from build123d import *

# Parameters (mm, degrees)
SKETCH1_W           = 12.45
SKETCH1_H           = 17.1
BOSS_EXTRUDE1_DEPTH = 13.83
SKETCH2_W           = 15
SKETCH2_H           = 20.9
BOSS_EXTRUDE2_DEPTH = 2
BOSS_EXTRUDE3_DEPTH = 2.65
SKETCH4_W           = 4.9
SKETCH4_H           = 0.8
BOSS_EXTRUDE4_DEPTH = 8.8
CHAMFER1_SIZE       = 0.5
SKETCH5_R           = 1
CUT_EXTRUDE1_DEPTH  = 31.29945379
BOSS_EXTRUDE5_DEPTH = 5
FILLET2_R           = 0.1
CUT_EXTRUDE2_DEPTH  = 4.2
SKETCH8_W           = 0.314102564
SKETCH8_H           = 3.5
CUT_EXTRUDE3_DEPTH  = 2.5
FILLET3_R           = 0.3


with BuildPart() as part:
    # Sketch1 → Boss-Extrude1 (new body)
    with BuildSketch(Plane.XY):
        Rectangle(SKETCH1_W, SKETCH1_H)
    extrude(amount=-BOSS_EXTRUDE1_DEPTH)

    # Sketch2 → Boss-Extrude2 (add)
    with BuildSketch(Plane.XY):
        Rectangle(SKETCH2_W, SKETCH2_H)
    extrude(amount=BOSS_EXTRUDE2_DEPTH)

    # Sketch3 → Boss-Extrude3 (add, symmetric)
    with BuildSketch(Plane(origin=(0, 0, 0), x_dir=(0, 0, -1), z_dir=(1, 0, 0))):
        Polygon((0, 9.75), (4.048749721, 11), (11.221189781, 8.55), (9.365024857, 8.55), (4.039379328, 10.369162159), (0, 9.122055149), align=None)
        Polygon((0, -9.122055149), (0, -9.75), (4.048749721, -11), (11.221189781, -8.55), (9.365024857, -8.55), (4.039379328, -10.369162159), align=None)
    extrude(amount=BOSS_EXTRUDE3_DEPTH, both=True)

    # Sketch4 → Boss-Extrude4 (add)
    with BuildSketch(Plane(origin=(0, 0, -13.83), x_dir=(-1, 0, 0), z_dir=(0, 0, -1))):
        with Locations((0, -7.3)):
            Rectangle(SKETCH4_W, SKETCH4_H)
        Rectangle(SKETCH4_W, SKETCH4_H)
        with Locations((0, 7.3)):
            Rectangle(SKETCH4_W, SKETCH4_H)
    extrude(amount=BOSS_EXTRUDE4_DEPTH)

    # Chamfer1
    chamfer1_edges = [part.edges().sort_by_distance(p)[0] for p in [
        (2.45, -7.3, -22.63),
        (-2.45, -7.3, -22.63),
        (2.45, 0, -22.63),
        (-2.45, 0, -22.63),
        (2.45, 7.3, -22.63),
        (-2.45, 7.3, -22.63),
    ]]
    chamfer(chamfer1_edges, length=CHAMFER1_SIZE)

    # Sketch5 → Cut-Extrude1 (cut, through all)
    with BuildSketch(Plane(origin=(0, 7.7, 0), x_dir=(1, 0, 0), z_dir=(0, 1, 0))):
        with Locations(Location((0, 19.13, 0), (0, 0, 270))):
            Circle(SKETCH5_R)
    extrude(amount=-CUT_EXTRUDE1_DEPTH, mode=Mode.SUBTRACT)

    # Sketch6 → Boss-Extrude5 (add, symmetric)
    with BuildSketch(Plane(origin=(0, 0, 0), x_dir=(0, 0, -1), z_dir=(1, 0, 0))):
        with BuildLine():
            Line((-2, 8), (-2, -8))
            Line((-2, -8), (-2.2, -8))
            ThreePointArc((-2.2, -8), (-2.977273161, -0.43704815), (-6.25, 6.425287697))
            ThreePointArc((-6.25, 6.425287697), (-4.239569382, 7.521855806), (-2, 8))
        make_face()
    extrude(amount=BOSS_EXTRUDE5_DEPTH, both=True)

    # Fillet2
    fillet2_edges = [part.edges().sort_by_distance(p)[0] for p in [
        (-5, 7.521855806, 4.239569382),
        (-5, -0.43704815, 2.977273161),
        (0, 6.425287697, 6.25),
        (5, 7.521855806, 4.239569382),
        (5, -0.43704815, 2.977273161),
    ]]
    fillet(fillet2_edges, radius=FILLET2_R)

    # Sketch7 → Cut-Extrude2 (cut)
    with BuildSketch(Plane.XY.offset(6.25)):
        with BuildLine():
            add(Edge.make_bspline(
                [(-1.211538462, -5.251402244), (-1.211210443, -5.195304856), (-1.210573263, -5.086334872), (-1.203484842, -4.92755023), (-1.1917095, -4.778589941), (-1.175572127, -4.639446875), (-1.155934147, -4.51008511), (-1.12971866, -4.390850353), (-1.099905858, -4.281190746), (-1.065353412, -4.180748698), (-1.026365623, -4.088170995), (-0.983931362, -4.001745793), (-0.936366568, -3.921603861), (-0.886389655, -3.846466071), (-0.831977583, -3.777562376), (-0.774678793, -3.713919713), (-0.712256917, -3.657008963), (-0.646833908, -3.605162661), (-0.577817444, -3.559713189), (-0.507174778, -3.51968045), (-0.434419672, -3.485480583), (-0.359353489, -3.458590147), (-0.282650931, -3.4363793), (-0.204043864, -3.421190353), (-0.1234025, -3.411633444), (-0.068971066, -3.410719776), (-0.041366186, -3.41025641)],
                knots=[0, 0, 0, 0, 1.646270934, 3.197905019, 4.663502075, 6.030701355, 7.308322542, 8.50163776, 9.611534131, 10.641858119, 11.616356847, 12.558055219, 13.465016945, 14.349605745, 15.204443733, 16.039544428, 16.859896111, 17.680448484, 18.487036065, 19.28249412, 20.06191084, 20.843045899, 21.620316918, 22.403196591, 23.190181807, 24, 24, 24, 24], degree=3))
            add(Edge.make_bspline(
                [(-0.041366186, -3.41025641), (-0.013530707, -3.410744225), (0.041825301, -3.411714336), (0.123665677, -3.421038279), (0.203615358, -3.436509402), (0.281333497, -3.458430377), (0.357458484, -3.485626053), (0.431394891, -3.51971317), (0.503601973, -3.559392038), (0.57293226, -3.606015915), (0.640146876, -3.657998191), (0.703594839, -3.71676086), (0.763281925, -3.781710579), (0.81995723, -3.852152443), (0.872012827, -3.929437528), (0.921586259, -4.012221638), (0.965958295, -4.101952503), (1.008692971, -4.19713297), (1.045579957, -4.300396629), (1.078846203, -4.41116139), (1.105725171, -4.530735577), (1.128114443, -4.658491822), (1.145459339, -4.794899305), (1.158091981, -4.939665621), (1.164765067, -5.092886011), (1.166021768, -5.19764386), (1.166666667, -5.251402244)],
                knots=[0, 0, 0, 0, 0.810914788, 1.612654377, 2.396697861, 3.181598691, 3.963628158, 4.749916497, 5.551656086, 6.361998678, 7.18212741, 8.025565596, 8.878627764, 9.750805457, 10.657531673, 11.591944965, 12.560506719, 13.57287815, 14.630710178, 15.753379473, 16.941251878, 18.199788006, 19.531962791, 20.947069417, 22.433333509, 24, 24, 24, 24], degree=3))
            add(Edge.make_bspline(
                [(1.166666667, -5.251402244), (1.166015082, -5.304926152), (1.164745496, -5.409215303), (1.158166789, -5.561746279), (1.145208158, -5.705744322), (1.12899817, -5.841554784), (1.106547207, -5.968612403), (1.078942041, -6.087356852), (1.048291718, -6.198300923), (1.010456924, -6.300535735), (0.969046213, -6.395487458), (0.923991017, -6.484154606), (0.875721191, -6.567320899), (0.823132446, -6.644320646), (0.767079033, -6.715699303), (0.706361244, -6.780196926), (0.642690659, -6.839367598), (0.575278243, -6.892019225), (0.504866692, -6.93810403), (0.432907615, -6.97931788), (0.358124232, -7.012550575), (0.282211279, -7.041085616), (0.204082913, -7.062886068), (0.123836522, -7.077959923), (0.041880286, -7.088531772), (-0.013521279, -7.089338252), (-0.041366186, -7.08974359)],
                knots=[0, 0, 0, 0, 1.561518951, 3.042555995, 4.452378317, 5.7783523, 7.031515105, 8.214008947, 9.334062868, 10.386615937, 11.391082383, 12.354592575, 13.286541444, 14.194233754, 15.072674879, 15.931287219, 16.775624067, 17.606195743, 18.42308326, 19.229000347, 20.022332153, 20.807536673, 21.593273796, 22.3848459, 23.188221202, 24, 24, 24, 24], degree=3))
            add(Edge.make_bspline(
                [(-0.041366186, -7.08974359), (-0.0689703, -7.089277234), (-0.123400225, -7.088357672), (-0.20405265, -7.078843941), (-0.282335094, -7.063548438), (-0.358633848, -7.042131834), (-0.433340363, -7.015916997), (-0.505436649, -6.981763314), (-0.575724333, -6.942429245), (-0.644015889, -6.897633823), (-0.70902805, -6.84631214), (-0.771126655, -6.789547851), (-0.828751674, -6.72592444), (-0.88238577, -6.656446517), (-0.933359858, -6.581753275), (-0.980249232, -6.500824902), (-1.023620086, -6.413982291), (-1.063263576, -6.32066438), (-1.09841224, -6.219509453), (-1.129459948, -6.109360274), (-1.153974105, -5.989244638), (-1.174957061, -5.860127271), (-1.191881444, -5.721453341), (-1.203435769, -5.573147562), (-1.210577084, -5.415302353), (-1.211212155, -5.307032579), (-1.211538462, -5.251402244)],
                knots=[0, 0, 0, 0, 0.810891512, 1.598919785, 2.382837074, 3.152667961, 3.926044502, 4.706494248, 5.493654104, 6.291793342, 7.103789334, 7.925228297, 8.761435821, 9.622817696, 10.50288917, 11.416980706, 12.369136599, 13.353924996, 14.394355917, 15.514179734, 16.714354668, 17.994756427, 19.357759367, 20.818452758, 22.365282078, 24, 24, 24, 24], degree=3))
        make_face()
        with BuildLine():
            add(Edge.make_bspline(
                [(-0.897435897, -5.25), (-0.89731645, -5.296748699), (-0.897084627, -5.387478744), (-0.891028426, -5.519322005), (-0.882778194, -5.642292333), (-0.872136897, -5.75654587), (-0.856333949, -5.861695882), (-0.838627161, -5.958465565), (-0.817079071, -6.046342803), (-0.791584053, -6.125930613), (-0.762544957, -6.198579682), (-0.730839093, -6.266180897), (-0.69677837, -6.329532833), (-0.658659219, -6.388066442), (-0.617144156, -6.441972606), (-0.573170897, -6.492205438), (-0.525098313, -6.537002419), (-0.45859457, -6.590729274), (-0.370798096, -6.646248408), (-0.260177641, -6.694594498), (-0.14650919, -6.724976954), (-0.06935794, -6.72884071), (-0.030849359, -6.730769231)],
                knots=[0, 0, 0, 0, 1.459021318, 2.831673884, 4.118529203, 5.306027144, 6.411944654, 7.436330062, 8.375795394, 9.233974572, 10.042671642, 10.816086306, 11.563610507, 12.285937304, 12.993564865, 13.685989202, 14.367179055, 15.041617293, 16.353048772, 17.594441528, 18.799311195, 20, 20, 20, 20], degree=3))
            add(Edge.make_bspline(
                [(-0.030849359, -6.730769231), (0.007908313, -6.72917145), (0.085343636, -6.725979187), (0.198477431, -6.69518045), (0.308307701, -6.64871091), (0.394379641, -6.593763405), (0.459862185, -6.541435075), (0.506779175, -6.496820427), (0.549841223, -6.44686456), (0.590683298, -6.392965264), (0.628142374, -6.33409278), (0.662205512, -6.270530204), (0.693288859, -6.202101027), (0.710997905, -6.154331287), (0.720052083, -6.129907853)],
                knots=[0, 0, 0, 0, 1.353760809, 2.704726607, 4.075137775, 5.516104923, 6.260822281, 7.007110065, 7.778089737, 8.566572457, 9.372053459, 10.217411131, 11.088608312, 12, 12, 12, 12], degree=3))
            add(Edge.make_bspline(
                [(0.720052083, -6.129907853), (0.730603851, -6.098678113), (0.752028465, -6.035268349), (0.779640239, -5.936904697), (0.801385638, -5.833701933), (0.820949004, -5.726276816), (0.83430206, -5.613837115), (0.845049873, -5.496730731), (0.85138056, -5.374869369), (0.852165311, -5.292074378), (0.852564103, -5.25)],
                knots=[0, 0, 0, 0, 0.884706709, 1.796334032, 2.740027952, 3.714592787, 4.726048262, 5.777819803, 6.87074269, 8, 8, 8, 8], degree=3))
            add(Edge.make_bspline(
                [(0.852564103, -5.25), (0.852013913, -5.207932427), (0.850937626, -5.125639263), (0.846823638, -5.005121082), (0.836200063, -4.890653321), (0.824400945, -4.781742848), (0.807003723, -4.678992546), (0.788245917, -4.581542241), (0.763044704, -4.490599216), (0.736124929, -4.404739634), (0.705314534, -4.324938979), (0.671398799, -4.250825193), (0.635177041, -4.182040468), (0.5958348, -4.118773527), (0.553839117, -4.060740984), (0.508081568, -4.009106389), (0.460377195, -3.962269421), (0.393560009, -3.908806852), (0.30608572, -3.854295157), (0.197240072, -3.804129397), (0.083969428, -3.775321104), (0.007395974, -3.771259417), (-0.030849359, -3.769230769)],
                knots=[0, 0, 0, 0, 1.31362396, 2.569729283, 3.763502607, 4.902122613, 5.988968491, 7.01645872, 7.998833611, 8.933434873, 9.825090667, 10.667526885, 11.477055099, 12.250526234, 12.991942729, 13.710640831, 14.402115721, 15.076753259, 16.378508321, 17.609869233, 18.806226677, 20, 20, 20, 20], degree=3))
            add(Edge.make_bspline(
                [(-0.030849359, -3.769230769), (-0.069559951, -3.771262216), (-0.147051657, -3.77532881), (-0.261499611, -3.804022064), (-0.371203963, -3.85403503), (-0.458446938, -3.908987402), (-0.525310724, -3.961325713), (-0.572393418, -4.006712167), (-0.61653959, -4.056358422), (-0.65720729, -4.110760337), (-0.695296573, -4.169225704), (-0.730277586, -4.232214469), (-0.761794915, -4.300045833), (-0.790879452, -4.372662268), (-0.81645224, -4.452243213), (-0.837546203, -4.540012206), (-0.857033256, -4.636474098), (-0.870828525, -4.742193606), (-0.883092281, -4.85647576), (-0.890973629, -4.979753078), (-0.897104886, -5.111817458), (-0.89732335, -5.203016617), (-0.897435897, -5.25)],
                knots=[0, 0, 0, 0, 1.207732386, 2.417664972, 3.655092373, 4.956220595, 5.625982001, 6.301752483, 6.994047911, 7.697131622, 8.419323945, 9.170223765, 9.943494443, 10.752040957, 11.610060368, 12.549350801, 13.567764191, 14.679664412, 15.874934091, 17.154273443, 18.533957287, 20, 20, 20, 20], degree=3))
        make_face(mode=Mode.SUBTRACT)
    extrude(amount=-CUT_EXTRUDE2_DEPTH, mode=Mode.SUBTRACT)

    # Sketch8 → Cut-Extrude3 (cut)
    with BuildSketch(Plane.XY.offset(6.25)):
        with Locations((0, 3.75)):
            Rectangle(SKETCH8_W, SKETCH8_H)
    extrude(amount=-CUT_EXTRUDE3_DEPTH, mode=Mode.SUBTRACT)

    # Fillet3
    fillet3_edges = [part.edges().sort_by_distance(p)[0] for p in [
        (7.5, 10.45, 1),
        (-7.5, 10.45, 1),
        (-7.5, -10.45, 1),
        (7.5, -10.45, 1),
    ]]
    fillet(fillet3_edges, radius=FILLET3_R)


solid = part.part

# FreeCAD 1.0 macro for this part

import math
import FreeCAD as App
import Part
import Sketcher
from FreeCAD import Vector


def edges_at(feature, points):
    """Names of the edges that pass closest to the given points."""
    edges = feature.Shape.Edges
    near = lambda p: min(range(len(edges)), key=lambda i: edges[i].distToShape(Part.Vertex(*p))[0])
    return sorted({f"Edge{near(p) + 1}" for p in points})


def add_polygon(sketch, points):
    """Adds a closed chain of lines whose ends are joined by coincident constraints."""
    first, n = sketch.GeometryCount, len(points)
    for a, b in zip(points, points[1:] + points[:1]):
        sketch.addGeometry(Part.LineSegment(App.Vector(*a, 0), App.Vector(*b, 0)), False)
    for i in range(n):
        sketch.addConstraint(Sketcher.Constraint("Coincident", first + i, 2, first + (i + 1) % n, 1))

doc = App.newDocument("Part")
body = doc.addObject("PartDesign::Body", "Body")

# Sketch on XY plane
sketch1 = body.newObject("Sketcher::SketchObject", "Sketch")
sketch1.AttachmentSupport = (doc.getObject("XY_Plane"), [""])
sketch1.MapMode = "FlatFace"
add_polygon(sketch1, [(-6.225, 8.55), (-6.225, -8.55), (6.225, -8.55), (6.225, 8.55)])  # lines 0-3
sketch1.addConstraint([
    Sketcher.Constraint("Vertical", 0),
    Sketcher.Constraint("Horizontal", 1),
    Sketcher.Constraint("Vertical", 2),
    Sketcher.Constraint("Horizontal", 3),
    Sketcher.Constraint("Symmetric", 0, 2, 2, 2, -1, 1),
    Sketcher.Constraint("DistanceY", 0, 2, 0, 1, 17.1),
    Sketcher.Constraint("DistanceX", 1, 1, 1, 2, 12.45),
])
pad1 = body.newObject("PartDesign::Pad", "Pad")
pad1.Profile = sketch1
pad1.Length = 13.83
pad1.Reversed = True

# Sketch on XY plane
sketch2 = body.newObject("Sketcher::SketchObject", "Sketch001")
sketch2.AttachmentSupport = (doc.getObject("XY_Plane"), [""])
sketch2.MapMode = "FlatFace"
add_polygon(sketch2, [(-7.5, 10.45), (-7.5, -10.45), (7.5, -10.45), (7.5, 10.45)])  # lines 0-3
sketch2.addConstraint([
    Sketcher.Constraint("Vertical", 0),
    Sketcher.Constraint("Horizontal", 1),
    Sketcher.Constraint("Vertical", 2),
    Sketcher.Constraint("Horizontal", 3),
    Sketcher.Constraint("Symmetric", 0, 2, 2, 2, -1, 1),
    Sketcher.Constraint("DistanceX", 1, 1, 1, 2, 15.0),
    Sketcher.Constraint("DistanceY", 0, 2, 0, 1, 20.9),
])
pad2 = body.newObject("PartDesign::Pad", "Pad001")
pad2.Profile = sketch2
pad2.Length = 2

# Sketch on YZ plane
sketch3 = body.newObject("Sketcher::SketchObject", "Sketch002")
sketch3.AttachmentSupport = (doc.getObject("YZ_Plane"), [""])
sketch3.MapMode = "FlatFace"
add_polygon(sketch3, [(11, -4.04875), (9.75, 0), (9.122055, 0), (10.369162, -4.039379), (8.55, -9.365025), (8.55, -11.22119)])  # lines 0-5
add_polygon(sketch3, [(-9.122055, 0), (-9.75, 0), (-11, -4.04875), (-8.55, -11.22119), (-8.55, -9.365025), (-10.369162, -4.039379)])  # lines 6-11
sketch3.addConstraint([
    Sketcher.Constraint("Horizontal", 1),
    Sketcher.Constraint("Vertical", 4),
    Sketcher.Constraint("Horizontal", 6),
    Sketcher.Constraint("Vertical", 9),
    Sketcher.Constraint("Symmetric", 0, 2, 6, 2, -1, 1),
    Sketcher.Constraint("Symmetric", 5, 2, 7, 2, -2),
    Sketcher.Constraint("Symmetric", 4, 2, 8, 2, -2),
    Sketcher.Constraint("Symmetric", 2, 2, 10, 2, -2),
    Sketcher.Constraint("Symmetric", 1, 2, 11, 2, -2),
    Sketcher.Constraint("Parallel", 0, 2),
    Sketcher.Constraint("Parallel", 3, 5),
    Sketcher.Constraint("Parallel", 8, 10),
    Sketcher.Constraint("DistanceX", -1, 1, 5, 2, 11.0),
    Sketcher.Constraint("DistanceX", 3, 2, 0, 2, 1.2),
    Sketcher.Constraint("DistanceX", 6, 2, 0, 2, 19.5),
    Sketcher.Constraint("Distance", 0, 4.237319),
    Sketcher.Constraint("Distance", 5, 7.57934),
    Sketcher.Constraint("DistanceX", 1, 2, 1, 1, 0.627945),
    Sketcher.Constraint("DistanceY", 4, 2, 4, 1, 1.856165),
])
pad3 = body.newObject("PartDesign::Pad", "Pad002")
pad3.Profile = sketch3
pad3.Length = 5.3
pad3.Midplane = True

# Sketch on XY plane
sketch4 = body.newObject("Sketcher::SketchObject", "Sketch003")
sketch4.AttachmentSupport = (doc.getObject("XY_Plane"), [""])
sketch4.MapMode = "FlatFace"
sketch4.AttachmentOffset = App.Placement(Vector(0, 0, -13.83), App.Rotation())
add_polygon(sketch4, [(2.45, -6.9), (2.45, -7.7), (-2.45, -7.7), (-2.45, -6.9)])  # lines 0-3
add_polygon(sketch4, [(2.45, 0.4), (2.45, -0.4), (-2.45, -0.4), (-2.45, 0.4)])  # lines 4-7
add_polygon(sketch4, [(2.45, 7.7), (2.45, 6.9), (-2.45, 6.9), (-2.45, 7.7)])  # lines 8-11
sketch4.addConstraint([
    Sketcher.Constraint("Vertical", 0),
    Sketcher.Constraint("Horizontal", 1),
    Sketcher.Constraint("Vertical", 2),
    Sketcher.Constraint("Horizontal", 3),
    Sketcher.Constraint("Vertical", 4),
    Sketcher.Constraint("Horizontal", 5),
    Sketcher.Constraint("Vertical", 6),
    Sketcher.Constraint("Horizontal", 7),
    Sketcher.Constraint("Vertical", 8),
    Sketcher.Constraint("Horizontal", 9),
    Sketcher.Constraint("Vertical", 10),
    Sketcher.Constraint("Horizontal", 11),
    Sketcher.Constraint("Symmetric", 4, 2, 6, 2, -1, 1),
    Sketcher.Constraint("Symmetric", 2, 2, 8, 2, -1, 1),
    Sketcher.Constraint("Symmetric", 0, 2, 10, 2, -1, 1),
    Sketcher.Constraint("Vertical", 3, 2, 4, 2),
    Sketcher.Constraint("Vertical", 2, 2, 5, 2),
    Sketcher.Constraint("Equal", 2, 4),
    Sketcher.Constraint("DistanceX", 1, 2, 1, 1, 4.9),
    Sketcher.Constraint("DistanceY", 0, 2, 0, 1, 0.8),
    Sketcher.Constraint("DistanceY", 0, 2, -1, 1, 7.7),
])
pad4 = body.newObject("PartDesign::Pad", "Pad003")
pad4.Profile = sketch4
pad4.Length = 8.8
pad4.Reversed = True
doc.recompute()

chamfer = body.newObject("PartDesign::Chamfer", "Chamfer")
chamfer.Base = (pad4, edges_at(pad4, [
    (2.45, -7.3, -22.63),
    (-2.45, -7.3, -22.63),
    (2.45, 0, -22.63),
    (-2.45, 0, -22.63),
    (2.45, 7.3, -22.63),
    (-2.45, 7.3, -22.63),
]))
chamfer.Size = 0.5

# Sketch on XZ plane
sketch5 = body.newObject("Sketcher::SketchObject", "Sketch004")
sketch5.AttachmentSupport = (doc.getObject("XZ_Plane"), [""])
sketch5.MapMode = "FlatFace"
sketch5.AttachmentOffset = App.Placement(Vector(0, 0, -7.7), App.Rotation())
sketch5.addGeometry(Part.Circle(Vector(0, -19.13, 0), Vector(0, 0, 1), 1), False)
sketch5.addConstraint([
    Sketcher.Constraint("PointOnObject", 0, 3, -2),
    Sketcher.Constraint("Diameter", 0, 2.0),
    Sketcher.Constraint("DistanceY", 0, 3, -1, 1, 19.13),
])
pocket1 = body.newObject("PartDesign::Pocket", "Pocket")
pocket1.Profile = sketch5
pocket1.Type = "ThroughAll"
pocket1.Reversed = True

# Sketch on YZ plane
sketch6 = body.newObject("Sketcher::SketchObject", "Sketch005")
sketch6.AttachmentSupport = (doc.getObject("YZ_Plane"), [""])
sketch6.MapMode = "FlatFace"
sketch6.addGeometry([
    Part.LineSegment(Vector(-8, 2, 0), Vector(8, 2, 0)),
    Part.ArcOfCircle(Part.Circle(Vector(0.065422, 1.476807, 0), Vector(0, 0, 1), 7.951809), math.radians(3.772525), math.radians(36.888881)),
    Part.ArcOfCircle(Part.Circle(Vector(-6.465087, 24.44794, 0), Vector(0, 0, 1), 22.300825), math.radians(-93.946652), math.radians(-54.688435)),
    Part.LineSegment(Vector(-8, 2.2, 0), Vector(-8, 2, 0)),
], False)
sketch6.addConstraint([
    Sketcher.Constraint("Coincident", 0, 2, 1, 1),
    Sketcher.Constraint("Coincident", 1, 2, 2, 2),
    Sketcher.Constraint("Coincident", 2, 1, 3, 1),
    Sketcher.Constraint("Coincident", 3, 2, 0, 1),
    Sketcher.Constraint("Horizontal", 0),
    Sketcher.Constraint("Vertical", 3),
    Sketcher.Constraint("DistanceX", 0, 1, 0, 2, 16.0),
    Sketcher.Constraint("DistanceY", 3, 2, 3, 1, 0.2),
    Sketcher.Constraint("DistanceX", -1, 1, 0, 2, 8.0),
    Sketcher.Constraint("DistanceY", -1, 1, 0, 2, 2.0),
    Sketcher.Constraint("DistanceY", -1, 1, 1, 2, 6.25),
    Sketcher.Constraint("Radius", 1, 7.951809),
    Sketcher.Constraint("Radius", 2, 22.300825),
    Sketcher.Constraint("DistanceX", -1, 1, 1, 3, 0.065422),
])
pad5 = body.newObject("PartDesign::Pad", "Pad004")
pad5.Profile = sketch6
pad5.Length = 10
pad5.Midplane = True
doc.recompute()

fillet = body.newObject("PartDesign::Fillet", "Fillet")
fillet.Base = (pad5, edges_at(pad5, [
    (-5, 7.522, 4.24),
    (-5, -0.437, 2.977),
    (0, 6.425, 6.25),
    (5, 7.522, 4.24),
    (5, -0.437, 2.977),
]))
fillet.Radius = 0.1

# Sketch on XY plane
sketch7 = body.newObject("Sketcher::SketchObject", "Sketch006")
sketch7.AttachmentSupport = (doc.getObject("XY_Plane"), [""])
sketch7.MapMode = "FlatFace"
sketch7.AttachmentOffset = App.Placement(Vector(0, 0, 6.25), App.Rotation())
sketch7.addGeometry([
    Part.BSplineCurve([Vector(-1.211538, -5.251402, 0), Vector(-1.21121, -5.195305, 0), Vector(-1.210573, -5.086335, 0), Vector(-1.203485, -4.92755, 0), Vector(-1.191709, -4.77859, 0), Vector(-1.175572, -4.639447, 0), Vector(-1.155934, -4.510085, 0), Vector(-1.129719, -4.39085, 0), Vector(-1.099906, -4.281191, 0), Vector(-1.065353, -4.180749, 0), Vector(-1.026366, -4.088171, 0), Vector(-0.983931, -4.001746, 0), Vector(-0.936367, -3.921604, 0), Vector(-0.88639, -3.846466, 0), Vector(-0.831978, -3.777562, 0), Vector(-0.774679, -3.71392, 0), Vector(-0.712257, -3.657009, 0), Vector(-0.646834, -3.605163, 0), Vector(-0.577817, -3.559713, 0), Vector(-0.507175, -3.51968, 0), Vector(-0.43442, -3.485481, 0), Vector(-0.359353, -3.45859, 0), Vector(-0.282651, -3.436379, 0), Vector(-0.204044, -3.42119, 0), Vector(-0.123402, -3.411633, 0), Vector(-0.068971, -3.41072, 0), Vector(-0.041366, -3.410256, 0)], [4, 1, 1, 1, 1, 1, 1, 1, 1, 1, 1, 1, 1, 1, 1, 1, 1, 1, 1, 1, 1, 1, 1, 1, 4], [0, 1.646270934, 3.197905019, 4.663502075, 6.030701355, 7.308322542, 8.50163776, 9.611534131, 10.641858119, 11.616356847, 12.558055219, 13.465016945, 14.349605745, 15.204443733, 16.039544428, 16.859896111, 17.680448484, 18.487036065, 19.28249412, 20.06191084, 20.843045899, 21.620316918, 22.403196591, 23.190181807, 24], False, 3, [1, 1, 1, 1, 1, 1, 1, 1, 1, 1, 1, 1, 1, 1, 1, 1, 1, 1, 1, 1, 1, 1, 1, 1, 1, 1, 1], False),  # 0
    Part.BSplineCurve([Vector(-0.041366, -7.089744, 0), Vector(-0.06897, -7.089277, 0), Vector(-0.1234, -7.088358, 0), Vector(-0.204053, -7.078844, 0), Vector(-0.282335, -7.063548, 0), Vector(-0.358634, -7.042132, 0), Vector(-0.43334, -7.015917, 0), Vector(-0.505437, -6.981763, 0), Vector(-0.575724, -6.942429, 0), Vector(-0.644016, -6.897634, 0), Vector(-0.709028, -6.846312, 0), Vector(-0.771127, -6.789548, 0), Vector(-0.828752, -6.725924, 0), Vector(-0.882386, -6.656447, 0), Vector(-0.93336, -6.581753, 0), Vector(-0.980249, -6.500825, 0), Vector(-1.02362, -6.413982, 0), Vector(-1.063264, -6.320664, 0), Vector(-1.098412, -6.219509, 0), Vector(-1.12946, -6.10936, 0), Vector(-1.153974, -5.989245, 0), Vector(-1.174957, -5.860127, 0), Vector(-1.191881, -5.721453, 0), Vector(-1.203436, -5.573148, 0), Vector(-1.210577, -5.415302, 0), Vector(-1.211212, -5.307033, 0), Vector(-1.211538, -5.251402, 0)], [4, 1, 1, 1, 1, 1, 1, 1, 1, 1, 1, 1, 1, 1, 1, 1, 1, 1, 1, 1, 1, 1, 1, 1, 4], [0, 0.810891512, 1.598919785, 2.382837074, 3.152667961, 3.926044502, 4.706494248, 5.493654104, 6.291793342, 7.103789334, 7.925228297, 8.761435821, 9.622817696, 10.50288917, 11.416980706, 12.369136599, 13.353924996, 14.394355917, 15.514179734, 16.714354668, 17.994756427, 19.357759367, 20.818452758, 22.365282078, 24], False, 3, [1, 1, 1, 1, 1, 1, 1, 1, 1, 1, 1, 1, 1, 1, 1, 1, 1, 1, 1, 1, 1, 1, 1, 1, 1, 1, 1], False),  # 1
    Part.BSplineCurve([Vector(1.166667, -5.251402, 0), Vector(1.166015, -5.304926, 0), Vector(1.164745, -5.409215, 0), Vector(1.158167, -5.561746, 0), Vector(1.145208, -5.705744, 0), Vector(1.128998, -5.841555, 0), Vector(1.106547, -5.968612, 0), Vector(1.078942, -6.087357, 0), Vector(1.048292, -6.198301, 0), Vector(1.010457, -6.300536, 0), Vector(0.969046, -6.395487, 0), Vector(0.923991, -6.484155, 0), Vector(0.875721, -6.567321, 0), Vector(0.823132, -6.644321, 0), Vector(0.767079, -6.715699, 0), Vector(0.706361, -6.780197, 0), Vector(0.642691, -6.839368, 0), Vector(0.575278, -6.892019, 0), Vector(0.504867, -6.938104, 0), Vector(0.432908, -6.979318, 0), Vector(0.358124, -7.012551, 0), Vector(0.282211, -7.041086, 0), Vector(0.204083, -7.062886, 0), Vector(0.123837, -7.07796, 0), Vector(0.04188, -7.088532, 0), Vector(-0.013521, -7.089338, 0), Vector(-0.041366, -7.089744, 0)], [4, 1, 1, 1, 1, 1, 1, 1, 1, 1, 1, 1, 1, 1, 1, 1, 1, 1, 1, 1, 1, 1, 1, 1, 4], [0, 1.561518951, 3.042555995, 4.452378317, 5.7783523, 7.031515105, 8.214008947, 9.334062868, 10.386615937, 11.391082383, 12.354592575, 13.286541444, 14.194233754, 15.072674879, 15.931287219, 16.775624067, 17.606195743, 18.42308326, 19.229000347, 20.022332153, 20.807536673, 21.593273796, 22.3848459, 23.188221202, 24], False, 3, [1, 1, 1, 1, 1, 1, 1, 1, 1, 1, 1, 1, 1, 1, 1, 1, 1, 1, 1, 1, 1, 1, 1, 1, 1, 1, 1], False),  # 2
    Part.BSplineCurve([Vector(-0.041366, -3.410256, 0), Vector(-0.013531, -3.410744, 0), Vector(0.041825, -3.411714, 0), Vector(0.123666, -3.421038, 0), Vector(0.203615, -3.436509, 0), Vector(0.281333, -3.45843, 0), Vector(0.357458, -3.485626, 0), Vector(0.431395, -3.519713, 0), Vector(0.503602, -3.559392, 0), Vector(0.572932, -3.606016, 0), Vector(0.640147, -3.657998, 0), Vector(0.703595, -3.716761, 0), Vector(0.763282, -3.781711, 0), Vector(0.819957, -3.852152, 0), Vector(0.872013, -3.929438, 0), Vector(0.921586, -4.012222, 0), Vector(0.965958, -4.101953, 0), Vector(1.008693, -4.197133, 0), Vector(1.04558, -4.300397, 0), Vector(1.078846, -4.411161, 0), Vector(1.105725, -4.530736, 0), Vector(1.128114, -4.658492, 0), Vector(1.145459, -4.794899, 0), Vector(1.158092, -4.939666, 0), Vector(1.164765, -5.092886, 0), Vector(1.166022, -5.197644, 0), Vector(1.166667, -5.251402, 0)], [4, 1, 1, 1, 1, 1, 1, 1, 1, 1, 1, 1, 1, 1, 1, 1, 1, 1, 1, 1, 1, 1, 1, 1, 4], [0, 0.810914788, 1.612654377, 2.396697861, 3.181598691, 3.963628158, 4.749916497, 5.551656086, 6.361998678, 7.18212741, 8.025565596, 8.878627764, 9.750805457, 10.657531673, 11.591944965, 12.560506719, 13.57287815, 14.630710178, 15.753379473, 16.941251878, 18.199788006, 19.531962791, 20.947069417, 22.433333509, 24], False, 3, [1, 1, 1, 1, 1, 1, 1, 1, 1, 1, 1, 1, 1, 1, 1, 1, 1, 1, 1, 1, 1, 1, 1, 1, 1, 1, 1], False),  # 3
    Part.BSplineCurve([Vector(-0.030849, -3.769231, 0), Vector(-0.06956, -3.771262, 0), Vector(-0.147052, -3.775329, 0), Vector(-0.2615, -3.804022, 0), Vector(-0.371204, -3.854035, 0), Vector(-0.458447, -3.908987, 0), Vector(-0.525311, -3.961326, 0), Vector(-0.572393, -4.006712, 0), Vector(-0.61654, -4.056358, 0), Vector(-0.657207, -4.11076, 0), Vector(-0.695297, -4.169226, 0), Vector(-0.730278, -4.232214, 0), Vector(-0.761795, -4.300046, 0), Vector(-0.790879, -4.372662, 0), Vector(-0.816452, -4.452243, 0), Vector(-0.837546, -4.540012, 0), Vector(-0.857033, -4.636474, 0), Vector(-0.870829, -4.742194, 0), Vector(-0.883092, -4.856476, 0), Vector(-0.890974, -4.979753, 0), Vector(-0.897105, -5.111817, 0), Vector(-0.897323, -5.203017, 0), Vector(-0.897436, -5.25, 0)], [4, 1, 1, 1, 1, 1, 1, 1, 1, 1, 1, 1, 1, 1, 1, 1, 1, 1, 1, 1, 4], [0, 1.207732386, 2.417664972, 3.655092373, 4.956220595, 5.625982001, 6.301752483, 6.994047911, 7.697131622, 8.419323945, 9.170223765, 9.943494443, 10.752040957, 11.610060368, 12.549350801, 13.567764191, 14.679664412, 15.874934091, 17.154273443, 18.533957287, 20], False, 3, [1, 1, 1, 1, 1, 1, 1, 1, 1, 1, 1, 1, 1, 1, 1, 1, 1, 1, 1, 1, 1, 1, 1], False),  # 4
    Part.BSplineCurve([Vector(0.852564, -5.25, 0), Vector(0.852014, -5.207932, 0), Vector(0.850938, -5.125639, 0), Vector(0.846824, -5.005121, 0), Vector(0.8362, -4.890653, 0), Vector(0.824401, -4.781743, 0), Vector(0.807004, -4.678993, 0), Vector(0.788246, -4.581542, 0), Vector(0.763045, -4.490599, 0), Vector(0.736125, -4.40474, 0), Vector(0.705315, -4.324939, 0), Vector(0.671399, -4.250825, 0), Vector(0.635177, -4.18204, 0), Vector(0.595835, -4.118774, 0), Vector(0.553839, -4.060741, 0), Vector(0.508082, -4.009106, 0), Vector(0.460377, -3.962269, 0), Vector(0.39356, -3.908807, 0), Vector(0.306086, -3.854295, 0), Vector(0.19724, -3.804129, 0), Vector(0.083969, -3.775321, 0), Vector(0.007396, -3.771259, 0), Vector(-0.030849, -3.769231, 0)], [4, 1, 1, 1, 1, 1, 1, 1, 1, 1, 1, 1, 1, 1, 1, 1, 1, 1, 1, 1, 4], [0, 1.31362396, 2.569729283, 3.763502607, 4.902122613, 5.988968491, 7.01645872, 7.998833611, 8.933434873, 9.825090667, 10.667526885, 11.477055099, 12.250526234, 12.991942729, 13.710640831, 14.402115721, 15.076753259, 16.378508321, 17.609869233, 18.806226677, 20], False, 3, [1, 1, 1, 1, 1, 1, 1, 1, 1, 1, 1, 1, 1, 1, 1, 1, 1, 1, 1, 1, 1, 1, 1], False),  # 5
    Part.BSplineCurve([Vector(0.720052, -6.129908, 0), Vector(0.730604, -6.098678, 0), Vector(0.752028, -6.035268, 0), Vector(0.77964, -5.936905, 0), Vector(0.801386, -5.833702, 0), Vector(0.820949, -5.726277, 0), Vector(0.834302, -5.613837, 0), Vector(0.84505, -5.496731, 0), Vector(0.851381, -5.374869, 0), Vector(0.852165, -5.292074, 0), Vector(0.852564, -5.25, 0)], [4, 1, 1, 1, 1, 1, 1, 1, 4], [0, 0.884706709, 1.796334032, 2.740027952, 3.714592787, 4.726048262, 5.777819803, 6.87074269, 8], False, 3, [1, 1, 1, 1, 1, 1, 1, 1, 1, 1, 1], False),  # 6
    Part.BSplineCurve([Vector(-0.030849, -6.730769, 0), Vector(0.007908, -6.729171, 0), Vector(0.085344, -6.725979, 0), Vector(0.198477, -6.69518, 0), Vector(0.308308, -6.648711, 0), Vector(0.39438, -6.593763, 0), Vector(0.459862, -6.541435, 0), Vector(0.506779, -6.49682, 0), Vector(0.549841, -6.446865, 0), Vector(0.590683, -6.392965, 0), Vector(0.628142, -6.334093, 0), Vector(0.662206, -6.27053, 0), Vector(0.693289, -6.202101, 0), Vector(0.710998, -6.154331, 0), Vector(0.720052, -6.129908, 0)], [4, 1, 1, 1, 1, 1, 1, 1, 1, 1, 1, 1, 4], [0, 1.353760809, 2.704726607, 4.075137775, 5.516104923, 6.260822281, 7.007110065, 7.778089737, 8.566572457, 9.372053459, 10.217411131, 11.088608312, 12], False, 3, [1, 1, 1, 1, 1, 1, 1, 1, 1, 1, 1, 1, 1, 1, 1], False),  # 7
    Part.BSplineCurve([Vector(-0.897436, -5.25, 0), Vector(-0.897316, -5.296749, 0), Vector(-0.897085, -5.387479, 0), Vector(-0.891028, -5.519322, 0), Vector(-0.882778, -5.642292, 0), Vector(-0.872137, -5.756546, 0), Vector(-0.856334, -5.861696, 0), Vector(-0.838627, -5.958466, 0), Vector(-0.817079, -6.046343, 0), Vector(-0.791584, -6.125931, 0), Vector(-0.762545, -6.19858, 0), Vector(-0.730839, -6.266181, 0), Vector(-0.696778, -6.329533, 0), Vector(-0.658659, -6.388066, 0), Vector(-0.617144, -6.441973, 0), Vector(-0.573171, -6.492205, 0), Vector(-0.525098, -6.537002, 0), Vector(-0.458595, -6.590729, 0), Vector(-0.370798, -6.646248, 0), Vector(-0.260178, -6.694594, 0), Vector(-0.146509, -6.724977, 0), Vector(-0.069358, -6.728841, 0), Vector(-0.030849, -6.730769, 0)], [4, 1, 1, 1, 1, 1, 1, 1, 1, 1, 1, 1, 1, 1, 1, 1, 1, 1, 1, 1, 4], [0, 1.459021318, 2.831673884, 4.118529203, 5.306027144, 6.411944654, 7.436330062, 8.375795394, 9.233974572, 10.042671642, 10.816086306, 11.563610507, 12.285937304, 12.993564865, 13.685989202, 14.367179055, 15.041617293, 16.353048772, 17.594441528, 18.799311195, 20], False, 3, [1, 1, 1, 1, 1, 1, 1, 1, 1, 1, 1, 1, 1, 1, 1, 1, 1, 1, 1, 1, 1, 1, 1], False),  # 8
], False)
sketch7.addConstraint([
    Sketcher.Constraint("Block", 0),
    Sketcher.Constraint("Block", 1),
    Sketcher.Constraint("Block", 2),
    Sketcher.Constraint("Block", 3),
    Sketcher.Constraint("Block", 4),
    Sketcher.Constraint("Block", 5),
    Sketcher.Constraint("Block", 6),
    Sketcher.Constraint("Block", 7),
    Sketcher.Constraint("Block", 8),
])
pocket2 = body.newObject("PartDesign::Pocket", "Pocket001")
pocket2.Profile = sketch7
pocket2.Length = 4.2

# Sketch on XY plane
sketch8 = body.newObject("Sketcher::SketchObject", "Sketch007")
sketch8.AttachmentSupport = (doc.getObject("XY_Plane"), [""])
sketch8.MapMode = "FlatFace"
sketch8.AttachmentOffset = App.Placement(Vector(0, 0, 6.25), App.Rotation())
add_polygon(sketch8, [(-0.157051, 5.5), (-0.157051, 2), (0.157051, 2), (0.157051, 5.5)])  # lines 0-3
sketch8.addConstraint([
    Sketcher.Constraint("Vertical", 0),
    Sketcher.Constraint("Horizontal", 1),
    Sketcher.Constraint("Vertical", 2),
    Sketcher.Constraint("Horizontal", 3),
    Sketcher.Constraint("DistanceY", 0, 2, 0, 1, 3.5),
    Sketcher.Constraint("DistanceY", -1, 1, 0, 2, 2.0),
    Sketcher.Constraint("DistanceX", 1, 1, 1, 2, 0.314103),
    Sketcher.Constraint("DistanceX", 0, 2, -1, 1, 0.157051),
])
pocket3 = body.newObject("PartDesign::Pocket", "Pocket002")
pocket3.Profile = sketch8
pocket3.Length = 2.5
doc.recompute()

fillet2 = body.newObject("PartDesign::Fillet", "Fillet001")
fillet2.Base = (pocket3, edges_at(pocket3, [
    (7.5, 10.45, 1),
    (-7.5, 10.45, 1),
    (-7.5, -10.45, 1),
    (7.5, -10.45, 1),
]))
fillet2.Radius = 0.3

doc.recompute()
